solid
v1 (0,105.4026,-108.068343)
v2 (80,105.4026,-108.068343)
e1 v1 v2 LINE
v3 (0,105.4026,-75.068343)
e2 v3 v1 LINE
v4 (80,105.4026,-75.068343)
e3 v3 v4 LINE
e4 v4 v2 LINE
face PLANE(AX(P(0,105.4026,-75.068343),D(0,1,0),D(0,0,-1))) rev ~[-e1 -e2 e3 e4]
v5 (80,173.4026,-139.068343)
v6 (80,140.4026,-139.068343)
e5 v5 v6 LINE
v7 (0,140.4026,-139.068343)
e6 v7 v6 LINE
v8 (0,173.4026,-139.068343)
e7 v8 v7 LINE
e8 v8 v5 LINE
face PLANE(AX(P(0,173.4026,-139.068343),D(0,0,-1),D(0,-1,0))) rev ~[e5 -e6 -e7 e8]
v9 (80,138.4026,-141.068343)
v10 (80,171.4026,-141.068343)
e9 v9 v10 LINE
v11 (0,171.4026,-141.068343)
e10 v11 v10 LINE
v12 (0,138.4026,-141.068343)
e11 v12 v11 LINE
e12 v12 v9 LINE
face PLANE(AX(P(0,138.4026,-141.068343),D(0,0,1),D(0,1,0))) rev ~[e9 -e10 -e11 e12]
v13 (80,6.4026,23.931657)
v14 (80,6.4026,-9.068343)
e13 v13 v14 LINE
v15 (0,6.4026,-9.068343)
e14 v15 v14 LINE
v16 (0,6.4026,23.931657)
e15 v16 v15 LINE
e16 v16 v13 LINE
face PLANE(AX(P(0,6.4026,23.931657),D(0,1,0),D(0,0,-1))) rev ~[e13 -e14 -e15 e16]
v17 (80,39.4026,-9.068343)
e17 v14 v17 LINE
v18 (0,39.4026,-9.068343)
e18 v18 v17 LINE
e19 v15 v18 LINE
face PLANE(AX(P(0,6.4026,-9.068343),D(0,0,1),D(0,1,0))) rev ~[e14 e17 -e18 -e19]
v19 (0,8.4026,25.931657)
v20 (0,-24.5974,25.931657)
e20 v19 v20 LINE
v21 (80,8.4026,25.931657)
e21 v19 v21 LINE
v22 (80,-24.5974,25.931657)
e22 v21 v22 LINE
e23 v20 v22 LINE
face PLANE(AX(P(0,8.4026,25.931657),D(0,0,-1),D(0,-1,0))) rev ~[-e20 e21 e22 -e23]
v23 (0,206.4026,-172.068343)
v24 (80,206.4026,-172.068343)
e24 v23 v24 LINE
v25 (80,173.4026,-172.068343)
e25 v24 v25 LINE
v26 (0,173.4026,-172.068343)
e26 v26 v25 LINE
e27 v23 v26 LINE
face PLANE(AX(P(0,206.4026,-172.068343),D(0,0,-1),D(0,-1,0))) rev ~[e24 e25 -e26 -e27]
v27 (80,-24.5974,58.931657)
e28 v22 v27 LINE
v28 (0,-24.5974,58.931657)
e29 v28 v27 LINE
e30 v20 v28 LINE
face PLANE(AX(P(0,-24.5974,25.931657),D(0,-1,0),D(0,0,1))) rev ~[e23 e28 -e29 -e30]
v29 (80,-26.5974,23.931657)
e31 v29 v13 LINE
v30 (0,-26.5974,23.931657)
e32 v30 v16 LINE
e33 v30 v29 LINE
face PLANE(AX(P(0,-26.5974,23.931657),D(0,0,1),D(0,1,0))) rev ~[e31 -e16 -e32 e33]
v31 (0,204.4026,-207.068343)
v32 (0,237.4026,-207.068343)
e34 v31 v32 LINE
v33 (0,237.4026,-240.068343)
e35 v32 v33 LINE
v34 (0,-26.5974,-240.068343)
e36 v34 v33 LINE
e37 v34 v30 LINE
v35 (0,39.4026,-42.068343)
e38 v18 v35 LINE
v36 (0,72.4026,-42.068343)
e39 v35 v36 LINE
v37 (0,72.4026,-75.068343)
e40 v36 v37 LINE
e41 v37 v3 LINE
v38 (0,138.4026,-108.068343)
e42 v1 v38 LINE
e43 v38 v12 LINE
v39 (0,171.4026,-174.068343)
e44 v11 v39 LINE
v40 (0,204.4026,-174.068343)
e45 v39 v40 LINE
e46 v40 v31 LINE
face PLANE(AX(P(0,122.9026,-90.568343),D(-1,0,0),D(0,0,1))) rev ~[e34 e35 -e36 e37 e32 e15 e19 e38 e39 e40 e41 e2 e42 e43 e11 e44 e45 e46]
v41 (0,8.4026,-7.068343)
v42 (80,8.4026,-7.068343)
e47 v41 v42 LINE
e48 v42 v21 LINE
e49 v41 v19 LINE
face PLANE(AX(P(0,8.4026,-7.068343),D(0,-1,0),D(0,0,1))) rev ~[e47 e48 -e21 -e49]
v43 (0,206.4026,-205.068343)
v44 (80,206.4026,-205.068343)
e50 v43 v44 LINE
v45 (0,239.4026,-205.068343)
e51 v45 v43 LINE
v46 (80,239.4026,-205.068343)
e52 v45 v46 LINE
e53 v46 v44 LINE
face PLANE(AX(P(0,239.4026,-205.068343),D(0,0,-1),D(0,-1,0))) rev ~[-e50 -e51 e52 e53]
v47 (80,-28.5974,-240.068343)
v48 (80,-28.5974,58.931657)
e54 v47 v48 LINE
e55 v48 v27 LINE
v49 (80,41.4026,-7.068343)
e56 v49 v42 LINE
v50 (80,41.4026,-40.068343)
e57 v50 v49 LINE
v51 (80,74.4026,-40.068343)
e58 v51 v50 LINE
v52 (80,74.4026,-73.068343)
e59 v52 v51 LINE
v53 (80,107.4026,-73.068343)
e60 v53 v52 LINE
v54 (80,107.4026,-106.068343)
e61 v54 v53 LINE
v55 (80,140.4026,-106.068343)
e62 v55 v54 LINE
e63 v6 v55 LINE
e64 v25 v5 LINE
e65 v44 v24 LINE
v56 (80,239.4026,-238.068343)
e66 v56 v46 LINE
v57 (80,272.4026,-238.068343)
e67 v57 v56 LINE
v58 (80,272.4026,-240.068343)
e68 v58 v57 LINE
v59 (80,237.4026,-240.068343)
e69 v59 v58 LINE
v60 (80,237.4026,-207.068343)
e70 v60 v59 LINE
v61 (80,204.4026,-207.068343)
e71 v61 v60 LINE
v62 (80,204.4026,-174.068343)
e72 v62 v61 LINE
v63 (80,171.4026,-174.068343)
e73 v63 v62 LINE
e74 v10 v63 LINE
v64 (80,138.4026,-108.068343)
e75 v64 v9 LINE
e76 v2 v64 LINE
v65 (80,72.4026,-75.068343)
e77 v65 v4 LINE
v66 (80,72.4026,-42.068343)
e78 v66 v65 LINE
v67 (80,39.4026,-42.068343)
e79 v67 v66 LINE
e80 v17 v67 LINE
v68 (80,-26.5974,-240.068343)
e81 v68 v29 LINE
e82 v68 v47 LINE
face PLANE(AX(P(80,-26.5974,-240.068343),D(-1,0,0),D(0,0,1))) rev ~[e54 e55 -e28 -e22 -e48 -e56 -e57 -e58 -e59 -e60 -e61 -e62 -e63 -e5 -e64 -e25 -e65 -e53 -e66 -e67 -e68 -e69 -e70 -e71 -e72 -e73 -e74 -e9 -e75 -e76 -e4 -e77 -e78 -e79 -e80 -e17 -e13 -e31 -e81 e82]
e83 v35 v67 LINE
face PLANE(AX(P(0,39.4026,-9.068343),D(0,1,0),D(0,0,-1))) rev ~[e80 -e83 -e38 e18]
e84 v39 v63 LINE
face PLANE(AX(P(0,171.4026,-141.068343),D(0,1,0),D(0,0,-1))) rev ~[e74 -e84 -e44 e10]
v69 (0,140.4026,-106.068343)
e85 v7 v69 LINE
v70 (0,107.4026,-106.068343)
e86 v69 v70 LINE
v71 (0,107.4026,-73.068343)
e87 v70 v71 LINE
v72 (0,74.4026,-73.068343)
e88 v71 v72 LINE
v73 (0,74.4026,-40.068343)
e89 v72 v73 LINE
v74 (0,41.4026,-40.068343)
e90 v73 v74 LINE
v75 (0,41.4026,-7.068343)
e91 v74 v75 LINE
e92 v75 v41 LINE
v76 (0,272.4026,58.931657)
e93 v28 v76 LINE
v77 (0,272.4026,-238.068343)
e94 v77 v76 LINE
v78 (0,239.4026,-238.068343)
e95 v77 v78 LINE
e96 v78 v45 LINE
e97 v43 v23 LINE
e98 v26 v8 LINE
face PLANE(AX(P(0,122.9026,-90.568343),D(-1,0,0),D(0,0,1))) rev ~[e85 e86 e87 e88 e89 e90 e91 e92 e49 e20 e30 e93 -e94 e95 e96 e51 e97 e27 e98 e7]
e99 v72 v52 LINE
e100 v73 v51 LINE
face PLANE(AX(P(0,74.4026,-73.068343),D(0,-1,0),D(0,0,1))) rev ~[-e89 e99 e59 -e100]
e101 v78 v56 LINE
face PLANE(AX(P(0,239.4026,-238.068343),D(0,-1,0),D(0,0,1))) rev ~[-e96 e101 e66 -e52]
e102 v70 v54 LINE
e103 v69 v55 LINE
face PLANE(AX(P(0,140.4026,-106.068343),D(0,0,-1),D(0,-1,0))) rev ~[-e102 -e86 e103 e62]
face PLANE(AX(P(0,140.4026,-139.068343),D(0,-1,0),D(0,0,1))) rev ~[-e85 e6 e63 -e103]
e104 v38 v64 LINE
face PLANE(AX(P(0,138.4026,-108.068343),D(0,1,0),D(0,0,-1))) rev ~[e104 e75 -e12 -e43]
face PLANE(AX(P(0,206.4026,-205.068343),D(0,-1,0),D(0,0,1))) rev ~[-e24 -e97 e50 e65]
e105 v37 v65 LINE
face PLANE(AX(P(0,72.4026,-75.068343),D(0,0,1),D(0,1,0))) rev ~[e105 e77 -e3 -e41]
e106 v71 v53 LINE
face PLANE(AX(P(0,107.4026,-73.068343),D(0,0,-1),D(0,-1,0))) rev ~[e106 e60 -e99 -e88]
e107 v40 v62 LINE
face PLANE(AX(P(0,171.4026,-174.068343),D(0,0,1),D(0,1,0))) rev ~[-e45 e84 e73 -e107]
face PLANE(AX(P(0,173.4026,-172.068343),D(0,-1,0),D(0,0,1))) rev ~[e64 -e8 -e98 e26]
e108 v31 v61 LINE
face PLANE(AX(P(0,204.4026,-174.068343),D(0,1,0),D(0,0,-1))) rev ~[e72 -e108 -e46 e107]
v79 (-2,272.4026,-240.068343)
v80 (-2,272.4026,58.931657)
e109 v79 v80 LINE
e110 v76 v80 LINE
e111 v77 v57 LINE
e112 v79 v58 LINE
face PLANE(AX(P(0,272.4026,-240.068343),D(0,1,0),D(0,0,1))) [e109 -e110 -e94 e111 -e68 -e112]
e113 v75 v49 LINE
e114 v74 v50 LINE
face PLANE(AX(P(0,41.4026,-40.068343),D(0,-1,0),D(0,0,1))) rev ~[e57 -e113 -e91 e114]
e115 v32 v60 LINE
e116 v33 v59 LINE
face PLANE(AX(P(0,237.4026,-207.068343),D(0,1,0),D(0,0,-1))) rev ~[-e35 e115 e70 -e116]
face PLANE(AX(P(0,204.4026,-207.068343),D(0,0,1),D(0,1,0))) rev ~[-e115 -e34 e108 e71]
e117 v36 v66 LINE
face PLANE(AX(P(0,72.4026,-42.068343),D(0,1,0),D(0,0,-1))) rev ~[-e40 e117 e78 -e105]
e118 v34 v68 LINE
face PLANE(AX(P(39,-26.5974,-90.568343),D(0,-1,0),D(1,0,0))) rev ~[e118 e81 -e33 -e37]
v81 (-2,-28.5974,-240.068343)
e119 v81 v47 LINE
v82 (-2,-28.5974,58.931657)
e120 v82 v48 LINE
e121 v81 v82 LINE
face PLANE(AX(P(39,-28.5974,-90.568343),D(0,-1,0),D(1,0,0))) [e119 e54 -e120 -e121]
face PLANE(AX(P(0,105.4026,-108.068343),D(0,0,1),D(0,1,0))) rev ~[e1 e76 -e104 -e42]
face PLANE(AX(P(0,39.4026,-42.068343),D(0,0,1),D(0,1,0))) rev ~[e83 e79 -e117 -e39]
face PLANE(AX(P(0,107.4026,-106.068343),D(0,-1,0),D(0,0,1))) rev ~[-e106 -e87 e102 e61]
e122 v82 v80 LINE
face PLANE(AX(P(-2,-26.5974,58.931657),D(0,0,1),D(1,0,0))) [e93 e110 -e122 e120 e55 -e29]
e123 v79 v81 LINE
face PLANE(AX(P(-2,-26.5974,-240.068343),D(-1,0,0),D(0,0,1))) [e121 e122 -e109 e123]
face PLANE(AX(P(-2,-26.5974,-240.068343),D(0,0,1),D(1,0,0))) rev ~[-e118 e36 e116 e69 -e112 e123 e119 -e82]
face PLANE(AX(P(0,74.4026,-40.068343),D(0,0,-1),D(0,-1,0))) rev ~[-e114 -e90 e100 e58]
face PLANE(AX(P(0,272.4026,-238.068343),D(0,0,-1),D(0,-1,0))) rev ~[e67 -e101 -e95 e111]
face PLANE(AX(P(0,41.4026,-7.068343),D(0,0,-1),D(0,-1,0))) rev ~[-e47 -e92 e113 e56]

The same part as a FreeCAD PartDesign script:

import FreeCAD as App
import Part
import Sketcher

V = App.Vector

doc = App.newDocument("Part")
body = doc.addObject("PartDesign::Body", "Body")

sketch1 = body.newObject("Sketcher::SketchObject", "Sketch")
sketch1.AttachmentSupport = (doc.getObject("YZ_Plane"), [""])
sketch1.MapMode = "FlatFace"
sketch1.addGeometry([
    Part.LineSegment(V(-26.6, 23.9, 0), V(6.4, 23.9, 0)),
    Part.LineSegment(V(6.4, 23.9, 0), V(6.4, -9.1, 0)),
    Part.LineSegment(V(6.4, -9.1, 0), V(39.4, -9.1, 0)),
    Part.LineSegment(V(39.4, -9.1, 0), V(39.4, -42.1, 0)),
    Part.LineSegment(V(39.4, -42.1, 0), V(72.4, -42.1, 0)),
    Part.LineSegment(V(72.4, -42.1, 0), V(72.4, -75.1, 0)),
    Part.LineSegment(V(72.4, -75.1, 0), V(105.4, -75.1, 0)),
    Part.LineSegment(V(105.4, -75.1, 0), V(105.4, -108.1, 0)),
    Part.LineSegment(V(105.4, -108.1, 0), V(138.4, -108.1, 0)),
    Part.LineSegment(V(138.4, -108.1, 0), V(138.4, -141.1, 0)),
    Part.LineSegment(V(138.4, -141.1, 0), V(171.4, -141.1, 0)),
    Part.LineSegment(V(171.4, -141.1, 0), V(171.4, -174.1, 0)),
    Part.LineSegment(V(171.4, -174.1, 0), V(204.4, -174.1, 0)),
    Part.LineSegment(V(204.4, -174.1, 0), V(204.4, -207.1, 0)),
    Part.LineSegment(V(204.4, -207.1, 0), V(237.4, -207.1, 0)),
    Part.LineSegment(V(237.4, -207.1, 0), V(237.4, -240.1, 0)),
    Part.LineSegment(V(237.4, -240.1, 0), V(272.4, -240.1, 0)),
    Part.LineSegment(V(272.4, -240.1, 0), V(272.4, -238.1, 0)),
    Part.LineSegment(V(272.4, -238.1, 0), V(239.4, -238.1, 0)),
    Part.LineSegment(V(239.4, -238.1, 0), V(239.4, -205.1, 0)),
    Part.LineSegment(V(239.4, -205.1, 0), V(206.4, -205.1, 0)),
    Part.LineSegment(V(206.4, -205.1, 0), V(206.4, -172.1, 0)),
    Part.LineSegment(V(206.4, -172.1, 0), V(173.4, -172.1, 0)),
    Part.LineSegment(V(173.4, -172.1, 0), V(173.4, -139.1, 0)),
    Part.LineSegment(V(173.4, -139.1, 0), V(140.4, -139.1, 0)),
    Part.LineSegment(V(140.4, -139.1, 0), V(140.4, -106.1, 0)),
    Part.LineSegment(V(140.4, -106.1, 0), V(107.4, -106.1, 0)),
    Part.LineSegment(V(107.4, -106.1, 0), V(107.4, -73.1, 0)),
    Part.LineSegment(V(107.4, -73.1, 0), V(74.4, -73.1, 0)),
    Part.LineSegment(V(74.4, -73.1, 0), V(74.4, -40.1, 0)),
    Part.LineSegment(V(74.4, -40.1, 0), V(41.4, -40.1, 0)),
    Part.LineSegment(V(41.4, -40.1, 0), V(41.4, -7.1, 0)),
    Part.LineSegment(V(41.4, -7.1, 0), V(8.4, -7.1, 0)),
    Part.LineSegment(V(8.4, -7.1, 0), V(8.4, 25.9, 0)),
    Part.LineSegment(V(8.4, 25.9, 0), V(-24.6, 25.9, 0)),
    Part.LineSegment(V(-24.6, 25.9, 0), V(-24.6, 58.9, 0)),
    Part.LineSegment(V(-24.6, 58.9, 0), V(-26.6, 58.9, 0)),
    Part.LineSegment(V(-26.6, 58.9, 0), V(-26.6, 23.9, 0)),
], False)
sketch1.addConstraint([
    Sketcher.Constraint("Coincident", 0, 2, 1, 1),
    Sketcher.Constraint("Coincident", 1, 2, 2, 1),
    Sketcher.Constraint("Coincident", 2, 2, 3, 1),
    Sketcher.Constraint("Coincident", 3, 2, 4, 1),
    Sketcher.Constraint("Coincident", 4, 2, 5, 1),
    Sketcher.Constraint("Coincident", 5, 2, 6, 1),
    Sketcher.Constraint("Coincident", 6, 2, 7, 1),
    Sketcher.Constraint("Coincident", 7, 2, 8, 1),
    Sketcher.Constraint("Coincident", 8, 2, 9, 1),
    Sketcher.Constraint("Coincident", 9, 2, 10, 1),
    Sketcher.Constraint("Coincident", 10, 2, 11, 1),
    Sketcher.Constraint("Coincident", 11, 2, 12, 1),
    Sketcher.Constraint("Coincident", 12, 2, 13, 1),
    Sketcher.Constraint("Coincident", 13, 2, 14, 1),
    Sketcher.Constraint("Coincident", 14, 2, 15, 1),
    Sketcher.Constraint("Coincident", 15, 2, 16, 1),
    Sketcher.Constraint("Coincident", 16, 2, 17, 1),
    Sketcher.Constraint("Coincident", 17, 2, 18, 1),
    Sketcher.Constraint("Coincident", 18, 2, 19, 1),
    Sketcher.Constraint("Coincident", 19, 2, 20, 1),
    Sketcher.Constraint("Coincident", 20, 2, 21, 1),
    Sketcher.Constraint("Coincident", 21, 2, 22, 1),
    Sketcher.Constraint("Coincident", 22, 2, 23, 1),
    Sketcher.Constraint("Coincident", 23, 2, 24, 1),
    Sketcher.Constraint("Coincident", 24, 2, 25, 1),
    Sketcher.Constraint("Coincident", 25, 2, 26, 1),
    Sketcher.Constraint("Coincident", 26, 2, 27, 1),
    Sketcher.Constraint("Coincident", 27, 2, 28, 1),
    Sketcher.Constraint("Coincident", 28, 2, 29, 1),
    Sketcher.Constraint("Coincident", 29, 2, 30, 1),
    Sketcher.Constraint("Coincident", 30, 2, 31, 1),
    Sketcher.Constraint("Coincident", 31, 2, 32, 1),
    Sketcher.Constraint("Coincident", 32, 2, 33, 1),
    Sketcher.Constraint("Coincident", 33, 2, 34, 1),
    Sketcher.Constraint("Coincident", 34, 2, 35, 1),
    Sketcher.Constraint("Coincident", 35, 2, 36, 1),
    Sketcher.Constraint("Coincident", 36, 2, 37, 1),
    Sketcher.Constraint("Coincident", 37, 2, 0, 1),
    Sketcher.Constraint("Horizontal", 0),
    Sketcher.Constraint("Vertical", 1),
    Sketcher.Constraint("Horizontal", 2),
    Sketcher.Constraint("Vertical", 3),
    Sketcher.Constraint("Horizontal", 4),
    Sketcher.Constraint("Vertical", 5),
    Sketcher.Constraint("Horizontal", 6),
    Sketcher.Constraint("Vertical", 7),
    Sketcher.Constraint("Horizontal", 8),
    Sketcher.Constraint("Vertical", 9),
    Sketcher.Constraint("Horizontal", 10),
    Sketcher.Constraint("Vertical", 11),
    Sketcher.Constraint("Horizontal", 12),
    Sketcher.Constraint("Vertical", 13),
    Sketcher.Constraint("Horizontal", 14),
    Sketcher.Constraint("Vertical", 15),
    Sketcher.Constraint("Horizontal", 16),
    Sketcher.Constraint("Vertical", 17),
    Sketcher.Constraint("Horizontal", 18),
    Sketcher.Constraint("Vertical", 19),
    Sketcher.Constraint("Horizontal", 20),
    Sketcher.Constraint("Vertical", 21),
    Sketcher.Constraint("Horizontal", 22),
    Sketcher.Constraint("Vertical", 23),
    Sketcher.Constraint("Horizontal", 24),
    Sketcher.Constraint("Vertical", 25),
    Sketcher.Constraint("Horizontal", 26),
    Sketcher.Constraint("Vertical", 27),
    Sketcher.Constraint("Horizontal", 28),
    Sketcher.Constraint("Vertical", 29),
    Sketcher.Constraint("Horizontal", 30),
    Sketcher.Constraint("Vertical", 31),
    Sketcher.Constraint("Horizontal", 32),
    Sketcher.Constraint("Vertical", 33),
    Sketcher.Constraint("Horizontal", 34),
    Sketcher.Constraint("Vertical", 35),
    Sketcher.Constraint("Horizontal", 36),
    Sketcher.Constraint("Vertical", 37),
    Sketcher.Constraint("Equal", 0, 2),
    Sketcher.Constraint("Equal", 2, 4),
    Sketcher.Constraint("Equal", 4, 6),
    Sketcher.Constraint("Equal", 6, 8),
    Sketcher.Constraint("Equal", 8, 10),
    Sketcher.Constraint("Equal", 10, 12),
    Sketcher.Constraint("Equal", 12, 14),
    Sketcher.Constraint("Equal", 14, 18),
    Sketcher.Constraint("Equal", 18, 20),
    Sketcher.Constraint("Equal", 20, 22),
    Sketcher.Constraint("Equal", 22, 24),
    Sketcher.Constraint("Equal", 24, 26),
    Sketcher.Constraint("Equal", 26, 28),
    Sketcher.Constraint("Equal", 28, 30),
    Sketcher.Constraint("Equal", 30, 32),
    Sketcher.Constraint("Equal", 32, 34),
    Sketcher.Constraint("Equal", 34, 1),
    Sketcher.Constraint("Equal", 1, 3),
    Sketcher.Constraint("Equal", 3, 5),
    Sketcher.Constraint("Equal", 5, 7),
    Sketcher.Constraint("Equal", 7, 9),
    Sketcher.Constraint("Equal", 9, 11),
    Sketcher.Constraint("Equal", 11, 13),
    Sketcher.Constraint("Equal", 13, 15),
    Sketcher.Constraint("Equal", 36, 17),
    Sketcher.Constraint("Equal", 15, 19),
    Sketcher.Constraint("Equal", 19, 21),
    Sketcher.Constraint("Equal", 21, 23),
    Sketcher.Constraint("Equal", 23, 25),
    Sketcher.Constraint("Equal", 25, 27),
    Sketcher.Constraint("Equal", 27, 29),
    Sketcher.Constraint("Equal", 29, 31),
    Sketcher.Constraint("Equal", 31, 33),
    Sketcher.Constraint("Equal", 33, 35),
    Sketcher.Constraint("DistanceX", 0, 1, 0, 2, 33.0),
    Sketcher.Constraint("DistanceX", 16, 1, 16, 2, 35.0),
    Sketcher.Constraint("DistanceX", -1, 1, 0, 2, 6.4026),
    Sketcher.Constraint("DistanceY", -1, 1, 0, 2, 23.931657),
])
pad1 = body.newObject("PartDesign::Pad", "Pad")
pad1.Profile = sketch1
pad1.Length = 80

sketch2 = body.newObject("Sketcher::SketchObject", "Sketch001")
sketch2.AttachmentSupport = (doc.getObject("YZ_Plane"), [""])
sketch2.MapMode = "FlatFace"
sketch2.addGeometry([
    Part.LineSegment(V(272, -240, 0), V(-27, -240, 0)),
    Part.LineSegment(V(-27, -240, 0), V(-27, 59, 0)),
    Part.LineSegment(V(-27, 59, 0), V(272, 59, 0)),
    Part.LineSegment(V(272, 59, 0), V(272, -240, 0)),
], False)
sketch2.addConstraint([
    Sketcher.Constraint("Coincident", 0, 2, 1, 1),
    Sketcher.Constraint("Coincident", 1, 2, 2, 1),
    Sketcher.Constraint("Coincident", 2, 2, 3, 1),
    Sketcher.Constraint("Coincident", 3, 2, 0, 1),
    Sketcher.Constraint("Horizontal", 0),
    Sketcher.Constraint("Vertical", 1),
    Sketcher.Constraint("Horizontal", 2),
    Sketcher.Constraint("Vertical", 3),
    Sketcher.Constraint("Equal", 2, 1),
    Sketcher.Constraint("DistanceX", 0, 2, 0, 1, 299.0),
    Sketcher.Constraint("DistanceX", 0, 2, -1, 1, 26.5974),
    Sketcher.Constraint("DistanceY", 0, 2, -1, 1, 240.068343),
])
pad2 = body.newObject("PartDesign::Pad", "Pad001")
pad2.Profile = sketch2
pad2.Length = 2
pad2.Reversed = True

sketch3 = body.newObject("Sketcher::SketchObject", "Sketch002")
sketch3.AttachmentSupport = (doc.getObject("XZ_Plane"), [""])
sketch3.MapMode = "FlatFace"
sketch3.AttachmentOffset = App.Placement(V(0, 0, 26.5974), App.Rotation())
sketch3.addGeometry([
    Part.LineSegment(V(-2, 59, 0), V(-2, -240, 0)),
    Part.LineSegment(V(-2, -240, 0), V(80, -240, 0)),
    Part.LineSegment(V(80, -240, 0), V(80, 59, 0)),
    Part.LineSegment(V(80, 59, 0), V(-2, 59, 0)),
], False)
sketch3.addConstraint([
    Sketcher.Constraint("Coincident", 0, 2, 1, 1),
    Sketcher.Constraint("Coincident", 1, 2, 2, 1),
    Sketcher.Constraint("Coincident", 2, 2, 3, 1),
    Sketcher.Constraint("Coincident", 3, 2, 0, 1),
    Sketcher.Constraint("Vertical", 0),
    Sketcher.Constraint("Horizontal", 1),
    Sketcher.Constraint("Vertical", 2),
    Sketcher.Constraint("Horizontal", 3),
    Sketcher.Constraint("DistanceX", 1, 1, 1, 2, 82.0),
    Sketcher.Constraint("DistanceY", 0, 2, 0, 1, 299.0),
    Sketcher.Constraint("DistanceX", 0, 2, -1, 1, 2.0),
    Sketcher.Constraint("DistanceY", 0, 2, -1, 1, 240.068343),
])
pad3 = body.newObject("PartDesign::Pad", "Pad002")
pad3.Profile = sketch3
pad3.Length = 2

doc.recompute()
